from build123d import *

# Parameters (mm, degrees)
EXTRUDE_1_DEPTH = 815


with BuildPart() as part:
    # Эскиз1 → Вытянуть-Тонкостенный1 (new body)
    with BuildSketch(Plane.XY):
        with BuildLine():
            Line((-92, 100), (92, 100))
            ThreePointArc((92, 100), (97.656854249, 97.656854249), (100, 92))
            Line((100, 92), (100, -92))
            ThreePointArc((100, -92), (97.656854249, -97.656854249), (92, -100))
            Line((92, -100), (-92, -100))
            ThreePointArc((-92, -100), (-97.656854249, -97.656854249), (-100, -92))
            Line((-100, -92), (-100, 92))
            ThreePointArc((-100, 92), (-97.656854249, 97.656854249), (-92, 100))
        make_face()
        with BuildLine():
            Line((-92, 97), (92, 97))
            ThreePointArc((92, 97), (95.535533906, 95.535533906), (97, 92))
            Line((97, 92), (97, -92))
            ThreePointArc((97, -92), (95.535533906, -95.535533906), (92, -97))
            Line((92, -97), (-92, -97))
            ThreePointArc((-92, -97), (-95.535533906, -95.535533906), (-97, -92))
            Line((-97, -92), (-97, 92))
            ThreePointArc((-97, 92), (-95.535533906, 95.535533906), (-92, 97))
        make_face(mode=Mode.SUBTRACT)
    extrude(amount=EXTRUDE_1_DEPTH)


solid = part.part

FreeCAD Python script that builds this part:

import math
import FreeCAD as App
import Part
import Sketcher

V = App.Vector

doc = App.newDocument("Part")
body = doc.addObject("PartDesign::Body", "Body")

sketch1 = body.newObject("Sketcher::SketchObject", "Sketch")
sketch1.AttachmentSupport = (doc.getObject("XY_Plane"), [""])
sketch1.MapMode = "FlatFace"
sketch1.addGeometry(Part.LineSegment(V(92, 100, 0), V(-92, 100, 0)), False)
sketch1.addGeometry(Part.ArcOfCircle(Part.Circle(V(-92, 92, 0), V(0, 0, 1), 8), math.radians(90), math.radians(180)), False)
sketch1.addGeometry(Part.LineSegment(V(-100, 92, 0), V(-100, -92, 0)), False)
sketch1.addGeometry(Part.ArcOfCircle(Part.Circle(V(-92, -92, 0), V(0, 0, 1), 8), math.radians(-180), math.radians(-90)), False)
sketch1.addGeometry(Part.LineSegment(V(-92, -100, 0), V(92, -100, 0)), False)
sketch1.addGeometry(Part.ArcOfCircle(Part.Circle(V(92, -92, 0), V(0, 0, 1), 8), math.radians(-90), math.radians(0)), False)
sketch1.addGeometry(Part.LineSegment(V(100, -92, 0), V(100, 92, 0)), False)
sketch1.addGeometry(Part.ArcOfCircle(Part.Circle(V(92, 92, 0), V(0, 0, 1), 8), math.radians(0), math.radians(90)), False)
sketch1.addGeometry(Part.LineSegment(V(-92, 97, 0), V(92, 97, 0)), False)
sketch1.addGeometry(Part.ArcOfCircle(Part.Circle(V(92, 92, 0), V(0, 0, 1), 5), math.radians(0), math.radians(90)), False)
sketch1.addGeometry(Part.LineSegment(V(97, 92, 0), V(97, -92, 0)), False)
sketch1.addGeometry(Part.ArcOfCircle(Part.Circle(V(92, -92, 0), V(0, 0, 1), 5), math.radians(-90), math.radians(0)), False)
sketch1.addGeometry(Part.LineSegment(V(92, -97, 0), V(-92, -97, 0)), False)
sketch1.addGeometry(Part.ArcOfCircle(Part.Circle(V(-92, -92, 0), V(0, 0, 1), 5), math.radians(180), math.radians(270)), False)
sketch1.addGeometry(Part.LineSegment(V(-97, -92, 0), V(-97, 92, 0)), False)
sketch1.addGeometry(Part.ArcOfCircle(Part.Circle(V(-92, 92, 0), V(0, 0, 1), 5), math.radians(90), math.radians(180)), False)
sketch1.addConstraint(Sketcher.Constraint("Tangent", 0, 2, 1, 1))
sketch1.addConstraint(Sketcher.Constraint("Tangent", 1, 2, 2, 1))
sketch1.addConstraint(Sketcher.Constraint("Tangent", 2, 2, 3, 1))
sketch1.addConstraint(Sketcher.Constraint("Tangent", 3, 2, 4, 1))
sketch1.addConstraint(Sketcher.Constraint("Tangent", 4, 2, 5, 1))
sketch1.addConstraint(Sketcher.Constraint("Tangent", 5, 2, 6, 1))
sketch1.addConstraint(Sketcher.Constraint("Tangent", 6, 2, 7, 1))
sketch1.addConstraint(Sketcher.Constraint("Tangent", 7, 2, 0, 1))
sketch1.addConstraint(Sketcher.Constraint("Tangent", 8, 2, 9, 2))
sketch1.addConstraint(Sketcher.Constraint("Tangent", 9, 1, 10, 1))
sketch1.addConstraint(Sketcher.Constraint("Tangent", 10, 2, 11, 2))
sketch1.addConstraint(Sketcher.Constraint("Tangent", 11, 1, 12, 1))
sketch1.addConstraint(Sketcher.Constraint("Tangent", 12, 2, 13, 2))
sketch1.addConstraint(Sketcher.Constraint("Tangent", 13, 1, 14, 1))
sketch1.addConstraint(Sketcher.Constraint("Tangent", 14, 2, 15, 2))
sketch1.addConstraint(Sketcher.Constraint("Tangent", 15, 1, 8, 1))
sketch1.addConstraint(Sketcher.Constraint("Horizontal", 0))
sketch1.addConstraint(Sketcher.Constraint("Vertical", 2))
sketch1.addConstraint(Sketcher.Constraint("Horizontal", 4))
sketch1.addConstraint(Sketcher.Constraint("Vertical", 6))
sketch1.addConstraint(Sketcher.Constraint("Horizontal", 8))
sketch1.addConstraint(Sketcher.Constraint("Vertical", 10))
sketch1.addConstraint(Sketcher.Constraint("Horizontal", 12))
sketch1.addConstraint(Sketcher.Constraint("Vertical", 14))
sketch1.addConstraint(Sketcher.Constraint("Coincident", 9, 3, 7, 3))
sketch1.addConstraint(Sketcher.Constraint("Coincident", 11, 3, 5, 3))
sketch1.addConstraint(Sketcher.Constraint("Coincident", 13, 3, 3, 3))
sketch1.addConstraint(Sketcher.Constraint("Equal", 1, 3))
sketch1.addConstraint(Sketcher.Constraint("Equal", 3, 5))
sketch1.addConstraint(Sketcher.Constraint("Equal", 5, 7))
sketch1.addConstraint(Sketcher.Constraint("Equal", 13, 15))
sketch1.addConstraint(Sketcher.Constraint("Symmetric", 1, 3, 5, 3, -1, 1))
sketch1.addConstraint(Sketcher.Constraint("Equal", 12, 2))
sketch1.addConstraint(Sketcher.Constraint("Radius", 1, 8.0))
sketch1.addConstraint(Sketcher.Constraint("Radius", 9, 5.0))
sketch1.addConstraint(Sketcher.Constraint("DistanceX", 0, 2, 0, 1, 184.0))
pad1 = body.newObject("PartDesign::Pad", "Pad")
pad1.Profile = sketch1
pad1.Length = 815

doc.recompute()
